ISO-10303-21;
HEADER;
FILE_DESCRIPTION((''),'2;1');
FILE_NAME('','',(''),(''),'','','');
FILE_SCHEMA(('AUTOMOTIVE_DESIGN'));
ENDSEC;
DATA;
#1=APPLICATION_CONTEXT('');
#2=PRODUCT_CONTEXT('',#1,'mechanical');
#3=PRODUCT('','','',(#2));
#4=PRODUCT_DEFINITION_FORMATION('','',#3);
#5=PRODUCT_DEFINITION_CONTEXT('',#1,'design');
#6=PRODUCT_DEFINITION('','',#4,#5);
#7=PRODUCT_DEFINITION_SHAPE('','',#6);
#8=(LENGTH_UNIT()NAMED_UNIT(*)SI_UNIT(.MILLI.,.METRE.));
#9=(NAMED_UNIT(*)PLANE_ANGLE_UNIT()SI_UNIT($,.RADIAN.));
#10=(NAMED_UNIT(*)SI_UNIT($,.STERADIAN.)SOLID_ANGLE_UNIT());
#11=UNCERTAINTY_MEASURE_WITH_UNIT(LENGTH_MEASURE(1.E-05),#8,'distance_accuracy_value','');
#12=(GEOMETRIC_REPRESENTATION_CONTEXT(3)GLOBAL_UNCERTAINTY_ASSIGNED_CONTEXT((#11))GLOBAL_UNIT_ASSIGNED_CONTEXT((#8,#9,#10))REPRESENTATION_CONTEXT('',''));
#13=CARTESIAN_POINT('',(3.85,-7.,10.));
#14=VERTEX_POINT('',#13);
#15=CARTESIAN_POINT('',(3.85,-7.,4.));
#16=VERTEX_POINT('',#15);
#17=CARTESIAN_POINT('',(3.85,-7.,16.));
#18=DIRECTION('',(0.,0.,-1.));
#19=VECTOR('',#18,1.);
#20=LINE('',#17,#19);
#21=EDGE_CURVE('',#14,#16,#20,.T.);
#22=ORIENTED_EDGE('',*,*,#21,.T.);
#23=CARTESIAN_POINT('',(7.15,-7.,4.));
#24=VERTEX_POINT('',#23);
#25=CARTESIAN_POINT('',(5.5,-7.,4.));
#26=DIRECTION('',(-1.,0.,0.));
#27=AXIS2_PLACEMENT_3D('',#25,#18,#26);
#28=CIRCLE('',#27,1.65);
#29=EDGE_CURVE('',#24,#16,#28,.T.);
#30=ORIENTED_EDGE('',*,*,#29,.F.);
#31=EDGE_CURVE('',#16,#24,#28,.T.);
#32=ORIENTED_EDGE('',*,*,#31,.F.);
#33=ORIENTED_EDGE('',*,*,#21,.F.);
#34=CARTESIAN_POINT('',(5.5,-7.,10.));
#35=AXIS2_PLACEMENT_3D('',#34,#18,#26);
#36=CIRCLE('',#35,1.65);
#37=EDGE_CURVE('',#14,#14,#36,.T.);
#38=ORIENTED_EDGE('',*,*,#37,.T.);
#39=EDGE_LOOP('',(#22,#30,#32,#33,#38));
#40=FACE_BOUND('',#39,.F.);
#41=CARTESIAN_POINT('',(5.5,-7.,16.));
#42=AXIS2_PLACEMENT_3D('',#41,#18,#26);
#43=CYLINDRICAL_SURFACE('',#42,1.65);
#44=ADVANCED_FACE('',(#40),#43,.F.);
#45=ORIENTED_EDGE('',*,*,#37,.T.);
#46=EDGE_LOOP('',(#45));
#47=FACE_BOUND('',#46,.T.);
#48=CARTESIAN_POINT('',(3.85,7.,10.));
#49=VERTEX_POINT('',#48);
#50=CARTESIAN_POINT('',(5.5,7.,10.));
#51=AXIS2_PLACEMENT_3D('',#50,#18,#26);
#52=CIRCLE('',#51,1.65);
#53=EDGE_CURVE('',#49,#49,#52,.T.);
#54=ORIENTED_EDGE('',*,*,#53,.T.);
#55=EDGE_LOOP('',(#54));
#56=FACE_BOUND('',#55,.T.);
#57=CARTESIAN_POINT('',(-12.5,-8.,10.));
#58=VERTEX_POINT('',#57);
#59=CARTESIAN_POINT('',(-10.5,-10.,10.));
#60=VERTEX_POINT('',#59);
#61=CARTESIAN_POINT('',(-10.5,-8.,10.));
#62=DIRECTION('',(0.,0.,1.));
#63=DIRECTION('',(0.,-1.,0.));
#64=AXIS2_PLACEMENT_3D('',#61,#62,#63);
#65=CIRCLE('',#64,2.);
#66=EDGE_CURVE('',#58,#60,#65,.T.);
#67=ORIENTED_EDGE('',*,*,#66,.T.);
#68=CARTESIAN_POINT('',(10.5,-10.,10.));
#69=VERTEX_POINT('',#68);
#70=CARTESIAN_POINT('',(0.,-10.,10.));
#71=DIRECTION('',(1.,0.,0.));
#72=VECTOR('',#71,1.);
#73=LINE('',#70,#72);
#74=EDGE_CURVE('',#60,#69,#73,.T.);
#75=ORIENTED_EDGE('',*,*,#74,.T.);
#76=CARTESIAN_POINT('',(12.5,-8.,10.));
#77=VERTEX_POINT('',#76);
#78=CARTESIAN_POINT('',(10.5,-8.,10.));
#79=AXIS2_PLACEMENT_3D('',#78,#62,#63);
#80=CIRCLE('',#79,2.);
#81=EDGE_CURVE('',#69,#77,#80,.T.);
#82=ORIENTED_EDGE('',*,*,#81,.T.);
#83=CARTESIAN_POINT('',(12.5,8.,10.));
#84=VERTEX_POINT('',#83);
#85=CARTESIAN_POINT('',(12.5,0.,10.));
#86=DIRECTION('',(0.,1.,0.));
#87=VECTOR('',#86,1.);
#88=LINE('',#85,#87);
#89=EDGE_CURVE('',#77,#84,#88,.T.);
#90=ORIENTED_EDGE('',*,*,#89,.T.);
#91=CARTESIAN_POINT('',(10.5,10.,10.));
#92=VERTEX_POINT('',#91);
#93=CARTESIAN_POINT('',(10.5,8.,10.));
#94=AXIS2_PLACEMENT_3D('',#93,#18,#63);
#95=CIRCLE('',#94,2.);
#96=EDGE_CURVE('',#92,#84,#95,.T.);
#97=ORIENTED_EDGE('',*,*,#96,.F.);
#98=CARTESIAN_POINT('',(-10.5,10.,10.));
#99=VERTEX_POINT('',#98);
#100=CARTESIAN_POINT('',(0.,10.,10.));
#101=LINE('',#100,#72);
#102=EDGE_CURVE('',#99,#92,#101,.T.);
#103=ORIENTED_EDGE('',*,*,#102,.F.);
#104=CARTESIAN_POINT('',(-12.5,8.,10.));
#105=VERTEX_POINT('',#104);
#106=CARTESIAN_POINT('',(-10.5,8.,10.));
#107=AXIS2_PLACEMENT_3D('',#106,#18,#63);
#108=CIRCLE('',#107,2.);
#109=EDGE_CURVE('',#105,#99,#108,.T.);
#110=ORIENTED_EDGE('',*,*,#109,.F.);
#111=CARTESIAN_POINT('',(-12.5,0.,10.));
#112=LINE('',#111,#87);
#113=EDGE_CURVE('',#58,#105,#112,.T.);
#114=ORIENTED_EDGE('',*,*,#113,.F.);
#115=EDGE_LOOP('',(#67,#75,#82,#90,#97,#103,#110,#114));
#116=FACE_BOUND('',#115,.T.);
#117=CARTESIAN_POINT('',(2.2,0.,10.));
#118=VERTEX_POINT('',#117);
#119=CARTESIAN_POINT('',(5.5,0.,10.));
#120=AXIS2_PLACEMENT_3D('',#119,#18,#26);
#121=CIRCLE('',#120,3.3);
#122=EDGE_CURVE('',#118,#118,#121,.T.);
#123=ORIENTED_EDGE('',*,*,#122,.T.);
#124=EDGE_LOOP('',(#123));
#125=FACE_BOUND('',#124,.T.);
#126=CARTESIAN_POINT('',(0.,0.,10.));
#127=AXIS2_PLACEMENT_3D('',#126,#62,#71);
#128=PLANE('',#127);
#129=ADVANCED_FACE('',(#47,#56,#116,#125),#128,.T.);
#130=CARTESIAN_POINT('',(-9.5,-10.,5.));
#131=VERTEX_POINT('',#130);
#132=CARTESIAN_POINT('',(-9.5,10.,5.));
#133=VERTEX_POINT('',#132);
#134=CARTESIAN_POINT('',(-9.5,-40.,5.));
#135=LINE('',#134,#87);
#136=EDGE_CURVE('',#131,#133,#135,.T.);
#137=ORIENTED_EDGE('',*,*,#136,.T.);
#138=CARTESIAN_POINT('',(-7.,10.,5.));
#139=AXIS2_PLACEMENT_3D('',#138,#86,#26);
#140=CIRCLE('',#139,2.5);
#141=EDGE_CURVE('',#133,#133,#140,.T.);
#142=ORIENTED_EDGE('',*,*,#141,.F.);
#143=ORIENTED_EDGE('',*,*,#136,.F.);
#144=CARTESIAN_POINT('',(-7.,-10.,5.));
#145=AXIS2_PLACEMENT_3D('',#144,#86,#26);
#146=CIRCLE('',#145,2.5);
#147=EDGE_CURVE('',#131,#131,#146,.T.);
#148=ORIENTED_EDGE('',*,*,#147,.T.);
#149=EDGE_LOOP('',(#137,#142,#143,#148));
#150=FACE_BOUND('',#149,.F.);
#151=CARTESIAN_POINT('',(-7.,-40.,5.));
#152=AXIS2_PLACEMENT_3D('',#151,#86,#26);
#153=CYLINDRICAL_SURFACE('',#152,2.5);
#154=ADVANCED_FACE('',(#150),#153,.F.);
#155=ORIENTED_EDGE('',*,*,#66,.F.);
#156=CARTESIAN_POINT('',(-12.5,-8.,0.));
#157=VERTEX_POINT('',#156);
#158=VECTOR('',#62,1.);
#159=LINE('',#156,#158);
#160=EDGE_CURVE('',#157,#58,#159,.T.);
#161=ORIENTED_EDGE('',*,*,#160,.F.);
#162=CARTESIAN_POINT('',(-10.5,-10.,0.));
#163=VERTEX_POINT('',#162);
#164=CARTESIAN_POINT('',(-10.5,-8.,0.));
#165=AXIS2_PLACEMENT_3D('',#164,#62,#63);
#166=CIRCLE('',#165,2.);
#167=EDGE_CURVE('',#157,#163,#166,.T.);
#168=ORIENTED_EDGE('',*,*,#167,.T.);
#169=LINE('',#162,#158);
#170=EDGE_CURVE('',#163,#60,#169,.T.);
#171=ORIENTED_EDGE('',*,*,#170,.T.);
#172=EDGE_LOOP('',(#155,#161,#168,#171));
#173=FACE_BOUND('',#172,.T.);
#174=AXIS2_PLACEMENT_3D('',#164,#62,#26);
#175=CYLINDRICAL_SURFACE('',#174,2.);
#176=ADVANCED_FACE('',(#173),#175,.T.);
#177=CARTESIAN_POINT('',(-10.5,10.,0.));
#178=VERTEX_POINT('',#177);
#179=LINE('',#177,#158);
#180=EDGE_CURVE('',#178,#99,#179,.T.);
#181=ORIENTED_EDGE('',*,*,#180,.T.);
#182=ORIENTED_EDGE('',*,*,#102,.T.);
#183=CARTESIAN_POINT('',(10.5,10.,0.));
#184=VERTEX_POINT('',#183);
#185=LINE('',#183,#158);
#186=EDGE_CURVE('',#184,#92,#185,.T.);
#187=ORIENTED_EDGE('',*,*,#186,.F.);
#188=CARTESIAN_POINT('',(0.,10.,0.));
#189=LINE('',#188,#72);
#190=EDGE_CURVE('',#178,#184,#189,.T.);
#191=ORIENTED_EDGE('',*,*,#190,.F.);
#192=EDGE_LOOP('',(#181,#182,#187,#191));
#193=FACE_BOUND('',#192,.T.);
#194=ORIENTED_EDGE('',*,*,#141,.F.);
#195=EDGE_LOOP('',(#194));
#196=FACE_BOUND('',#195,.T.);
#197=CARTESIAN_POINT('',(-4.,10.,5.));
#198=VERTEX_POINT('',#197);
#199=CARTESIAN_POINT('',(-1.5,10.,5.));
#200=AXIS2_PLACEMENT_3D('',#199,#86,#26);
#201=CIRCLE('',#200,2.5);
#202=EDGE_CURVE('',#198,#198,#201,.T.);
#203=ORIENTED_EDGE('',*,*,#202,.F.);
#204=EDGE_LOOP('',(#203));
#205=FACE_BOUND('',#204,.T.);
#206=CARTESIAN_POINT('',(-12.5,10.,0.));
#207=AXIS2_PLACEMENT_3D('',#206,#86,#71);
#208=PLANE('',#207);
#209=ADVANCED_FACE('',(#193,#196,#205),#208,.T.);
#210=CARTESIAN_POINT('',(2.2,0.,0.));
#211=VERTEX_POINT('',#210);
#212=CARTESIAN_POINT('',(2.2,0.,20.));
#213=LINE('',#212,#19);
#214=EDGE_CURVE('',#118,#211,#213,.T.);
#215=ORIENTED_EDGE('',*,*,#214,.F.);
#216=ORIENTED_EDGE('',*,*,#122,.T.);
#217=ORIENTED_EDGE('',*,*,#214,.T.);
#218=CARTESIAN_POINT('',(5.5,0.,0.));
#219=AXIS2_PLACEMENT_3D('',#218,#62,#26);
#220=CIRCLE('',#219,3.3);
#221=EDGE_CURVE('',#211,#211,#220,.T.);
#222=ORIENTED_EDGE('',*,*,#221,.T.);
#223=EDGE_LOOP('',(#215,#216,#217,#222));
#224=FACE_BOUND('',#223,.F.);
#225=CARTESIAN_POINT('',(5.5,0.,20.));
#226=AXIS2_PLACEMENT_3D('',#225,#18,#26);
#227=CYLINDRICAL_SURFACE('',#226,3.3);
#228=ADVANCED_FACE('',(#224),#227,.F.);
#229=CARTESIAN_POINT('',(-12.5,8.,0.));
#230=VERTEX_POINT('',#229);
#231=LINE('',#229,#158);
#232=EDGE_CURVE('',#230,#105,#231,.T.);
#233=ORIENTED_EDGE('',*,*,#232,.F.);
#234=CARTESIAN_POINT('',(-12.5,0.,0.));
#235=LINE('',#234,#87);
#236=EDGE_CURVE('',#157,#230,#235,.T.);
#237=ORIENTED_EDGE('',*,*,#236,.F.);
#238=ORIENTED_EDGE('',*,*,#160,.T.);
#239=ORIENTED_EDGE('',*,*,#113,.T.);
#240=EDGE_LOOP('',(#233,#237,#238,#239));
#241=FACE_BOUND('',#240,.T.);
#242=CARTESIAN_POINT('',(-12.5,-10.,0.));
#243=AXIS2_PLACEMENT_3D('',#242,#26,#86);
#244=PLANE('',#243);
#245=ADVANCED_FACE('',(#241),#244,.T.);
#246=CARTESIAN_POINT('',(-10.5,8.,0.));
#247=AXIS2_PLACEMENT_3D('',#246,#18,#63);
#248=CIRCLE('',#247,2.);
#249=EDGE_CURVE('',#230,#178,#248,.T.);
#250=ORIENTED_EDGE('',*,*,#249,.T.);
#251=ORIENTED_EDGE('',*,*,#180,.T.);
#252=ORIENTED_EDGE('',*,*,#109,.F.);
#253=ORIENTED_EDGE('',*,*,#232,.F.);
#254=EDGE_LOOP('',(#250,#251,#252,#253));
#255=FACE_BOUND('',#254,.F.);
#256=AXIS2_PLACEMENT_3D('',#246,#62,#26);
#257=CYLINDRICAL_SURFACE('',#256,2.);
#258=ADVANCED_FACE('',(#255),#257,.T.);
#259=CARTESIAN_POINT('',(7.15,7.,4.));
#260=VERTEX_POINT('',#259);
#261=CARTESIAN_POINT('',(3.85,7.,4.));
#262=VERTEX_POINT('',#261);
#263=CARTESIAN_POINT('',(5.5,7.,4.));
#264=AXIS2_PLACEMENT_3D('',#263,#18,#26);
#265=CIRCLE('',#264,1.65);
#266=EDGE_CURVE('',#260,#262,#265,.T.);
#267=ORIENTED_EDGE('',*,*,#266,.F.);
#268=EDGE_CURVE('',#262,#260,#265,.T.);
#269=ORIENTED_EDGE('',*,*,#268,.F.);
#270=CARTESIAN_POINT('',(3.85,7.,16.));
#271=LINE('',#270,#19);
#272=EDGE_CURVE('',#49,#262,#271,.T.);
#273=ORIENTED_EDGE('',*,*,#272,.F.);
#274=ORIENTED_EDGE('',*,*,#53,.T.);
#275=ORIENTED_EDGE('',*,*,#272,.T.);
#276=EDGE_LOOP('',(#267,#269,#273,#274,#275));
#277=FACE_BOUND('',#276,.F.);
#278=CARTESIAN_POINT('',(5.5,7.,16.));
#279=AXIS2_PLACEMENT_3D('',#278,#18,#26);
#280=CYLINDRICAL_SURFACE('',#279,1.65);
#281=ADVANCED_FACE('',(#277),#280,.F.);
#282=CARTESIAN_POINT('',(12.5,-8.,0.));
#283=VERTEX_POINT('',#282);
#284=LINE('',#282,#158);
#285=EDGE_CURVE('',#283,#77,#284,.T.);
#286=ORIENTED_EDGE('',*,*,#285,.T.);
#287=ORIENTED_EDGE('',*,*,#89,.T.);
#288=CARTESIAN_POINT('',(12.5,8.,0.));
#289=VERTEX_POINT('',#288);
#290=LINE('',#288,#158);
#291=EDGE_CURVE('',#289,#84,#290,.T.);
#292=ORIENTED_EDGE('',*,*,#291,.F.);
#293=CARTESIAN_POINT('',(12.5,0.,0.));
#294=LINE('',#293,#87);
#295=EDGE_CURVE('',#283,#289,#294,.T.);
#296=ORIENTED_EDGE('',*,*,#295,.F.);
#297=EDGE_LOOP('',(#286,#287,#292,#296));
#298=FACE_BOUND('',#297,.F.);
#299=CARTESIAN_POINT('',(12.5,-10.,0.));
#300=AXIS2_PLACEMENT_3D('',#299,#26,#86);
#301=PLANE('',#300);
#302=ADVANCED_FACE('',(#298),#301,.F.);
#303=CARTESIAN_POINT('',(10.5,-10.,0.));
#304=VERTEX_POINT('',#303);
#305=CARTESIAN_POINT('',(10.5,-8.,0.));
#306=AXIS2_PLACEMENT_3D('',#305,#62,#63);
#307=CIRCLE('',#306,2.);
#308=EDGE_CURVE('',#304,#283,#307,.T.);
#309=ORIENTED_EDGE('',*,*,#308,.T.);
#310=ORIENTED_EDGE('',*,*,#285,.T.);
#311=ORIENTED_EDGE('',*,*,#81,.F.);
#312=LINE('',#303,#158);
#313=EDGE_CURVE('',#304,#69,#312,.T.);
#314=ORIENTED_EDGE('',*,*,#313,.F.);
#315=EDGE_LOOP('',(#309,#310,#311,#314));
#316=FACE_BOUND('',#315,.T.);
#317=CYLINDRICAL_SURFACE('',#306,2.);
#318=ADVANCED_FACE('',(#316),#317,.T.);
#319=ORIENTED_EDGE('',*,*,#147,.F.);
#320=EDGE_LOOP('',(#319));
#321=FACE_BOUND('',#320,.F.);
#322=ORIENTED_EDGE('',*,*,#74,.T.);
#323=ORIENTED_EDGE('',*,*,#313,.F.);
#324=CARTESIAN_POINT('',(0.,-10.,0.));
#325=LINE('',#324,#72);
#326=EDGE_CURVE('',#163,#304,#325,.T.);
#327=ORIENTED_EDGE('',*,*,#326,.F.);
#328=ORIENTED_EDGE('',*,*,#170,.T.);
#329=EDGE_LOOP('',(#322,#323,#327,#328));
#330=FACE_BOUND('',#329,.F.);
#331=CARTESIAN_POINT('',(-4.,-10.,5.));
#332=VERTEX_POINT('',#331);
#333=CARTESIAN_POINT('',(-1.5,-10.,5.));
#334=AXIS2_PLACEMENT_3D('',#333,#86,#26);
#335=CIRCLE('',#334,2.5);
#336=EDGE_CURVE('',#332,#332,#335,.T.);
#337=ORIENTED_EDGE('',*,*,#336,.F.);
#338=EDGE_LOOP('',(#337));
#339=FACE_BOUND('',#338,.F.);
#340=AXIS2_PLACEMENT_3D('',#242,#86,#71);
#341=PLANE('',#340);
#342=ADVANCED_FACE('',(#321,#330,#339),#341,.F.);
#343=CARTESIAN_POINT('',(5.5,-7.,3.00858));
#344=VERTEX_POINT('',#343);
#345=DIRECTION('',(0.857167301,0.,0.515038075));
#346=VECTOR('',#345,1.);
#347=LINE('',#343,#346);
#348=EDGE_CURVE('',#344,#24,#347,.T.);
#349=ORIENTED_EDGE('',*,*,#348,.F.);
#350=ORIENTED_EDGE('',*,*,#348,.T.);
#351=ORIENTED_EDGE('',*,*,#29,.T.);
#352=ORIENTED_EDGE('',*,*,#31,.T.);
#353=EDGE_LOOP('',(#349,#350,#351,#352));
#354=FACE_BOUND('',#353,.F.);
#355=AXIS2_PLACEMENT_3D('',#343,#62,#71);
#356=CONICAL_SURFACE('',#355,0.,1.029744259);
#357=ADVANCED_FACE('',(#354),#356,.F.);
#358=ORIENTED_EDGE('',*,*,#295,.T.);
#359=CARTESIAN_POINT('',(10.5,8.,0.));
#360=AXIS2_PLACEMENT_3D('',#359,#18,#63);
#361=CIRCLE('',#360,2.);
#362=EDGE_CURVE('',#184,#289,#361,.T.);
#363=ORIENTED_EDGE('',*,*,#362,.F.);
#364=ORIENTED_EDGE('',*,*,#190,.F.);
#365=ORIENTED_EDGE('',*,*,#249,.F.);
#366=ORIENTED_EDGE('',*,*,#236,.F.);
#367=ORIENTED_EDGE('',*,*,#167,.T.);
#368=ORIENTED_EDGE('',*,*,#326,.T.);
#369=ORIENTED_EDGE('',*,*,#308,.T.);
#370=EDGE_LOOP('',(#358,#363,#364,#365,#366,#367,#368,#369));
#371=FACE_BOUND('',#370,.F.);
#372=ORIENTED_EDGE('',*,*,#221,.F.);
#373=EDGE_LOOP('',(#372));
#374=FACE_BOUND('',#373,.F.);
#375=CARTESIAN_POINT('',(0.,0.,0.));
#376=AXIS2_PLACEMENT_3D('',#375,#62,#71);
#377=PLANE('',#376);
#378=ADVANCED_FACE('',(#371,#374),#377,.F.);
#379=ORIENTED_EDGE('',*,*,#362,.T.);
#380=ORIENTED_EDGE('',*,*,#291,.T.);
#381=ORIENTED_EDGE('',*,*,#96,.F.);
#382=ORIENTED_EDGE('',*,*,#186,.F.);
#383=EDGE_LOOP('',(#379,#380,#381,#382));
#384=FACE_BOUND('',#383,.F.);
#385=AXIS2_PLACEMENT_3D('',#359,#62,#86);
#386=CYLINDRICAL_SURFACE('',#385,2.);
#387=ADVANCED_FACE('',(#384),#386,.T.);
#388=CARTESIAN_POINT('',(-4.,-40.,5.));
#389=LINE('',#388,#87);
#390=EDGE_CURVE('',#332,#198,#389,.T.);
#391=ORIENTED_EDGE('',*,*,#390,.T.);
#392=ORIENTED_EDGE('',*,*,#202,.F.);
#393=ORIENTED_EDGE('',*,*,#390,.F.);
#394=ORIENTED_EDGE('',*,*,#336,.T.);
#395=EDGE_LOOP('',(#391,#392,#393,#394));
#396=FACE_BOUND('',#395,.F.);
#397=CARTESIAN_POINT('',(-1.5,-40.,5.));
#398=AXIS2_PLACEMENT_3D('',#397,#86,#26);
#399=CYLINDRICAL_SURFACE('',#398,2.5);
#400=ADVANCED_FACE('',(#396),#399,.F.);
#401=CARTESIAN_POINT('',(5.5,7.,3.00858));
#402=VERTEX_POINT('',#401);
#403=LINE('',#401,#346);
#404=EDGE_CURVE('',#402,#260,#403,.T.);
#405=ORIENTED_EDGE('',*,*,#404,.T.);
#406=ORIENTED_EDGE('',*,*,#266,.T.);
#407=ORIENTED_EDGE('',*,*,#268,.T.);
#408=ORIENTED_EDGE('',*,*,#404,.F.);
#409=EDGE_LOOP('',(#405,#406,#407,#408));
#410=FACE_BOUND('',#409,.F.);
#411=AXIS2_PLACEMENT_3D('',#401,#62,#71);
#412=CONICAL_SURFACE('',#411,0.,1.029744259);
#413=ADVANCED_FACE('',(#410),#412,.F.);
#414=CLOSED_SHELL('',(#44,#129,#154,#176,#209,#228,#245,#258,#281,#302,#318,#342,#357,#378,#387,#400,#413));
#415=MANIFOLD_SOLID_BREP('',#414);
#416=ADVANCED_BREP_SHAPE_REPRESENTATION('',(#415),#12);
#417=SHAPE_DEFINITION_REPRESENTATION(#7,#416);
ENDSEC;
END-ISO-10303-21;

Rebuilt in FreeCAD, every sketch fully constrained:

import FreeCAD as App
import Part
import Sketcher
Q = App.Units.Quantity


def edges_at(feature, points):
    """Names of the edges that pass closest to the given points."""
    edges = feature.Shape.Edges
    near = lambda p: min(range(len(edges)), key=lambda i: edges[i].distToShape(Part.Vertex(*p))[0])
    return sorted({f"Edge{near(p) + 1}" for p in points})

doc = App.newDocument("Part")
body = doc.addObject("PartDesign::Body", "Body")

# Sketch on XY plane
sketch1 = body.newObject("Sketcher::SketchObject", "Sketch")
sketch1.AttachmentSupport = (doc.getObject("XY_Plane"), [""])
sketch1.MapMode = "FlatFace"
sketch1.addGeometry(Part.LineSegment(App.Vector(-12, 10, 0), App.Vector(-12, -10, 0)), False)
sketch1.addGeometry(Part.LineSegment(App.Vector(-12, -10, 0), App.Vector(12, -10, 0)), False)
sketch1.addGeometry(Part.LineSegment(App.Vector(12, -10, 0), App.Vector(12, 10, 0)), False)
sketch1.addGeometry(Part.LineSegment(App.Vector(12, 10, 0), App.Vector(-12, 10, 0)), False)
sketch1.addConstraint(Sketcher.Constraint("Coincident", 0, 2, 1, 1))
sketch1.addConstraint(Sketcher.Constraint("Coincident", 1, 2, 2, 1))
sketch1.addConstraint(Sketcher.Constraint("Coincident", 2, 2, 3, 1))
sketch1.addConstraint(Sketcher.Constraint("Coincident", 3, 2, 0, 1))
sketch1.addConstraint(Sketcher.Constraint("Vertical", 0))
sketch1.addConstraint(Sketcher.Constraint("Horizontal", 1))
sketch1.addConstraint(Sketcher.Constraint("Vertical", 2))
sketch1.addConstraint(Sketcher.Constraint("Horizontal", 3))
sketch1.addConstraint(Sketcher.Constraint("Symmetric", 0, 2, 2, 2, -1, 1))
sketch1.addConstraint(Sketcher.Constraint("DistanceX", 1, 1, 1, 2, Q("25 mm")))
sketch1.addConstraint(Sketcher.Constraint("DistanceY", 0, 2, 0, 1, Q("20 mm")))
pad1 = body.newObject("PartDesign::Pad", "Pad")
pad1.Profile = sketch1
pad1.Length = 10

# Sketch on XY plane
sketch2 = body.newObject("Sketcher::SketchObject", "Sketch001")
sketch2.AttachmentSupport = (doc.getObject("XY_Plane"), [""])
sketch2.MapMode = "FlatFace"
sketch2.AttachmentOffset = App.Placement(App.Vector(0, 0, 10), App.Rotation())
sketch2.addGeometry(Part.Circle(App.Vector(5.5, 0, 0), App.Vector(0, 0, 1), 3.3), False)
sketch2.addConstraint(Sketcher.Constraint("PointOnObject", 0, 3, -1))
sketch2.addConstraint(Sketcher.Constraint("Diameter", 0, Q("6.6 mm")))
sketch2.addConstraint(Sketcher.Constraint("DistanceX", -1, 1, 0, 3, Q("5.5 mm")))
doc.recompute()
hole = body.newObject("PartDesign::Hole", "Hole")
hole.Profile = sketch2
hole.ThreadType = "None"
hole.Diameter = 6.6
hole.DepthType = "Dimension"
hole.Depth = 10
hole.DrillPoint = "Angled"
hole.DrillPointAngle = 118

# Sketch on XZ plane
sketch3 = body.newObject("Sketcher::SketchObject", "Sketch002")
sketch3.AttachmentSupport = (doc.getObject("XZ_Plane"), [""])
sketch3.MapMode = "FlatFace"
sketch3.AttachmentOffset = App.Placement(App.Vector(0, 0, 10), App.Rotation())
sketch3.addGeometry(Part.Circle(App.Vector(-7, 5, 0), App.Vector(0, 0, 1), 2.5), False)
sketch3.addGeometry(Part.Circle(App.Vector(-1.5, 5, 0), App.Vector(0, 0, 1), 2.5), False)
sketch3.addConstraint(Sketcher.Constraint("Equal", 0, 1))
sketch3.addConstraint(Sketcher.Constraint("Horizontal", 0, 3, 1, 3))
sketch3.addConstraint(Sketcher.Constraint("Diameter", 0, Q("5 mm")))
sketch3.addConstraint(Sketcher.Constraint("DistanceX", 0, 3, -1, 1, Q("7 mm")))
sketch3.addConstraint(Sketcher.Constraint("DistanceY", -1, 1, 0, 3, Q("5 mm")))
sketch3.addConstraint(Sketcher.Constraint("DistanceX", 1, 3, -1, 1, Q("1.5 mm")))
doc.recompute()
hole2 = body.newObject("PartDesign::Hole", "Hole001")
hole2.Profile = sketch3
hole2.ThreadType = "None"
hole2.Diameter = 5
hole2.DepthType = "Dimension"
hole2.Depth = 30
hole2.DrillPoint = "Angled"
hole2.DrillPointAngle = 118
doc.recompute()

fillet = body.newObject("PartDesign::Fillet", "Fillet")
fillet.Base = (hole2, edges_at(hole2, [
    (-12.5, -10, 5),
    (-12.5, 10, 5),
    (12.5, -10, 5),
    (12.5, 10, 5),
]))
fillet.Radius = 2

# Sketch on XY plane
sketch4 = body.newObject("Sketcher::SketchObject", "Sketch003")
sketch4.AttachmentSupport = (doc.getObject("XY_Plane"), [""])
sketch4.MapMode = "FlatFace"
sketch4.AttachmentOffset = App.Placement(App.Vector(0, 0, 10), App.Rotation())
sketch4.addGeometry(Part.Circle(App.Vector(5.5, 7, 0), App.Vector(0, 0, 1), 1.6), False)
sketch4.addGeometry(Part.Circle(App.Vector(5.5, -7, 0), App.Vector(0, 0, 1), 1.6), False)
sketch4.addConstraint(Sketcher.Constraint("Equal", 0, 1))
sketch4.addConstraint(Sketcher.Constraint("Symmetric", 0, 3, 1, 3, -1))
sketch4.addConstraint(Sketcher.Constraint("Diameter", 0, Q("3.3 mm")))
sketch4.addConstraint(Sketcher.Constraint("DistanceY", -1, 1, 0, 3, Q("7 mm")))
sketch4.addConstraint(Sketcher.Constraint("DistanceX", -1, 1, 0, 3, Q("5.5 mm")))
doc.recompute()
hole3 = body.newObject("PartDesign::Hole", "Hole002")
hole3.Profile = sketch4
hole3.ThreadType = "None"
hole3.Diameter = 3.3
hole3.DepthType = "Dimension"
hole3.Depth = 6
hole3.DrillPoint = "Angled"
hole3.DrillPointAngle = 118

doc.recompute()
